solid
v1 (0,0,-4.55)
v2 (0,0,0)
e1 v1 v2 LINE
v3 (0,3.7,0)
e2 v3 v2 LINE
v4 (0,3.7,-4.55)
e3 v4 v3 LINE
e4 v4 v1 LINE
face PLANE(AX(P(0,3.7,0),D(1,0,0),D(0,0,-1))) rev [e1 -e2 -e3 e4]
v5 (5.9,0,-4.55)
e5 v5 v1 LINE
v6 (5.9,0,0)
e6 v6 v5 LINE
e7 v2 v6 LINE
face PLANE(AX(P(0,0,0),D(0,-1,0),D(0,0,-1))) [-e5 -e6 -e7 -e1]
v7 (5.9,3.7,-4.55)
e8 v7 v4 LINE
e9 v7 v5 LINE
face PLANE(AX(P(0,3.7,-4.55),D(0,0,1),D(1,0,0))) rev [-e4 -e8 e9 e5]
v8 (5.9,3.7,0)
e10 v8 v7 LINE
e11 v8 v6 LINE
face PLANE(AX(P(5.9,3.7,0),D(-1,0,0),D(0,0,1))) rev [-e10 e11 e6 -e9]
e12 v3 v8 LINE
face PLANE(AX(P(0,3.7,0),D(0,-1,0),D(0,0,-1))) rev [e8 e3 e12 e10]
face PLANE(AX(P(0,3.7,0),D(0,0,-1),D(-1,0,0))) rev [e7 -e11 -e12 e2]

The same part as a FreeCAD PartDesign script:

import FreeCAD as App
import Part
import Sketcher

V = App.Vector
Q = App.Units.Quantity

doc = App.newDocument("Part")
body = doc.addObject("PartDesign::Body", "Body")

# Sketch on XZ plane
sketch1 = body.newObject("Sketcher::SketchObject", "Sketch")
sketch1.AttachmentSupport = (doc.getObject("XZ_Plane"), [""])
sketch1.MapMode = "FlatFace"
sketch1.addGeometry(Part.LineSegment(V(0, -4.55, 0), V(0, 0, 0)), False)
sketch1.addGeometry(Part.LineSegment(V(0, 0, 0), V(5.9, 0, 0)), False)
sketch1.addGeometry(Part.LineSegment(V(5.9, 0, 0), V(5.9, -4.55, 0)), False)
sketch1.addGeometry(Part.LineSegment(V(5.9, -4.55, 0), V(0, -4.55, 0)), False)
sketch1.addConstraint(Sketcher.Constraint("Coincident", 0, 2, 1, 1))
sketch1.addConstraint(Sketcher.Constraint("Coincident", 1, 2, 2, 1))
sketch1.addConstraint(Sketcher.Constraint("Coincident", 2, 2, 3, 1))
sketch1.addConstraint(Sketcher.Constraint("Coincident", 3, 2, 0, 1))
sketch1.addConstraint(Sketcher.Constraint("Vertical", 0))
sketch1.addConstraint(Sketcher.Constraint("Horizontal", 1))
sketch1.addConstraint(Sketcher.Constraint("Vertical", 2))
sketch1.addConstraint(Sketcher.Constraint("Horizontal", 3))
sketch1.addConstraint(Sketcher.Constraint("Coincident", 0, 2, -1, 1))
sketch1.addConstraint(Sketcher.Constraint("DistanceX", 1, 1, 1, 2, Q("5.9 mm")))
sketch1.addConstraint(Sketcher.Constraint("DistanceY", 0, 1, 0, 2, Q("4.55 mm")))
pad1 = body.newObject("PartDesign::Pad", "Pad")
pad1.Profile = sketch1
pad1.Length = 3.7
pad1.Reversed = True

doc.recompute()
